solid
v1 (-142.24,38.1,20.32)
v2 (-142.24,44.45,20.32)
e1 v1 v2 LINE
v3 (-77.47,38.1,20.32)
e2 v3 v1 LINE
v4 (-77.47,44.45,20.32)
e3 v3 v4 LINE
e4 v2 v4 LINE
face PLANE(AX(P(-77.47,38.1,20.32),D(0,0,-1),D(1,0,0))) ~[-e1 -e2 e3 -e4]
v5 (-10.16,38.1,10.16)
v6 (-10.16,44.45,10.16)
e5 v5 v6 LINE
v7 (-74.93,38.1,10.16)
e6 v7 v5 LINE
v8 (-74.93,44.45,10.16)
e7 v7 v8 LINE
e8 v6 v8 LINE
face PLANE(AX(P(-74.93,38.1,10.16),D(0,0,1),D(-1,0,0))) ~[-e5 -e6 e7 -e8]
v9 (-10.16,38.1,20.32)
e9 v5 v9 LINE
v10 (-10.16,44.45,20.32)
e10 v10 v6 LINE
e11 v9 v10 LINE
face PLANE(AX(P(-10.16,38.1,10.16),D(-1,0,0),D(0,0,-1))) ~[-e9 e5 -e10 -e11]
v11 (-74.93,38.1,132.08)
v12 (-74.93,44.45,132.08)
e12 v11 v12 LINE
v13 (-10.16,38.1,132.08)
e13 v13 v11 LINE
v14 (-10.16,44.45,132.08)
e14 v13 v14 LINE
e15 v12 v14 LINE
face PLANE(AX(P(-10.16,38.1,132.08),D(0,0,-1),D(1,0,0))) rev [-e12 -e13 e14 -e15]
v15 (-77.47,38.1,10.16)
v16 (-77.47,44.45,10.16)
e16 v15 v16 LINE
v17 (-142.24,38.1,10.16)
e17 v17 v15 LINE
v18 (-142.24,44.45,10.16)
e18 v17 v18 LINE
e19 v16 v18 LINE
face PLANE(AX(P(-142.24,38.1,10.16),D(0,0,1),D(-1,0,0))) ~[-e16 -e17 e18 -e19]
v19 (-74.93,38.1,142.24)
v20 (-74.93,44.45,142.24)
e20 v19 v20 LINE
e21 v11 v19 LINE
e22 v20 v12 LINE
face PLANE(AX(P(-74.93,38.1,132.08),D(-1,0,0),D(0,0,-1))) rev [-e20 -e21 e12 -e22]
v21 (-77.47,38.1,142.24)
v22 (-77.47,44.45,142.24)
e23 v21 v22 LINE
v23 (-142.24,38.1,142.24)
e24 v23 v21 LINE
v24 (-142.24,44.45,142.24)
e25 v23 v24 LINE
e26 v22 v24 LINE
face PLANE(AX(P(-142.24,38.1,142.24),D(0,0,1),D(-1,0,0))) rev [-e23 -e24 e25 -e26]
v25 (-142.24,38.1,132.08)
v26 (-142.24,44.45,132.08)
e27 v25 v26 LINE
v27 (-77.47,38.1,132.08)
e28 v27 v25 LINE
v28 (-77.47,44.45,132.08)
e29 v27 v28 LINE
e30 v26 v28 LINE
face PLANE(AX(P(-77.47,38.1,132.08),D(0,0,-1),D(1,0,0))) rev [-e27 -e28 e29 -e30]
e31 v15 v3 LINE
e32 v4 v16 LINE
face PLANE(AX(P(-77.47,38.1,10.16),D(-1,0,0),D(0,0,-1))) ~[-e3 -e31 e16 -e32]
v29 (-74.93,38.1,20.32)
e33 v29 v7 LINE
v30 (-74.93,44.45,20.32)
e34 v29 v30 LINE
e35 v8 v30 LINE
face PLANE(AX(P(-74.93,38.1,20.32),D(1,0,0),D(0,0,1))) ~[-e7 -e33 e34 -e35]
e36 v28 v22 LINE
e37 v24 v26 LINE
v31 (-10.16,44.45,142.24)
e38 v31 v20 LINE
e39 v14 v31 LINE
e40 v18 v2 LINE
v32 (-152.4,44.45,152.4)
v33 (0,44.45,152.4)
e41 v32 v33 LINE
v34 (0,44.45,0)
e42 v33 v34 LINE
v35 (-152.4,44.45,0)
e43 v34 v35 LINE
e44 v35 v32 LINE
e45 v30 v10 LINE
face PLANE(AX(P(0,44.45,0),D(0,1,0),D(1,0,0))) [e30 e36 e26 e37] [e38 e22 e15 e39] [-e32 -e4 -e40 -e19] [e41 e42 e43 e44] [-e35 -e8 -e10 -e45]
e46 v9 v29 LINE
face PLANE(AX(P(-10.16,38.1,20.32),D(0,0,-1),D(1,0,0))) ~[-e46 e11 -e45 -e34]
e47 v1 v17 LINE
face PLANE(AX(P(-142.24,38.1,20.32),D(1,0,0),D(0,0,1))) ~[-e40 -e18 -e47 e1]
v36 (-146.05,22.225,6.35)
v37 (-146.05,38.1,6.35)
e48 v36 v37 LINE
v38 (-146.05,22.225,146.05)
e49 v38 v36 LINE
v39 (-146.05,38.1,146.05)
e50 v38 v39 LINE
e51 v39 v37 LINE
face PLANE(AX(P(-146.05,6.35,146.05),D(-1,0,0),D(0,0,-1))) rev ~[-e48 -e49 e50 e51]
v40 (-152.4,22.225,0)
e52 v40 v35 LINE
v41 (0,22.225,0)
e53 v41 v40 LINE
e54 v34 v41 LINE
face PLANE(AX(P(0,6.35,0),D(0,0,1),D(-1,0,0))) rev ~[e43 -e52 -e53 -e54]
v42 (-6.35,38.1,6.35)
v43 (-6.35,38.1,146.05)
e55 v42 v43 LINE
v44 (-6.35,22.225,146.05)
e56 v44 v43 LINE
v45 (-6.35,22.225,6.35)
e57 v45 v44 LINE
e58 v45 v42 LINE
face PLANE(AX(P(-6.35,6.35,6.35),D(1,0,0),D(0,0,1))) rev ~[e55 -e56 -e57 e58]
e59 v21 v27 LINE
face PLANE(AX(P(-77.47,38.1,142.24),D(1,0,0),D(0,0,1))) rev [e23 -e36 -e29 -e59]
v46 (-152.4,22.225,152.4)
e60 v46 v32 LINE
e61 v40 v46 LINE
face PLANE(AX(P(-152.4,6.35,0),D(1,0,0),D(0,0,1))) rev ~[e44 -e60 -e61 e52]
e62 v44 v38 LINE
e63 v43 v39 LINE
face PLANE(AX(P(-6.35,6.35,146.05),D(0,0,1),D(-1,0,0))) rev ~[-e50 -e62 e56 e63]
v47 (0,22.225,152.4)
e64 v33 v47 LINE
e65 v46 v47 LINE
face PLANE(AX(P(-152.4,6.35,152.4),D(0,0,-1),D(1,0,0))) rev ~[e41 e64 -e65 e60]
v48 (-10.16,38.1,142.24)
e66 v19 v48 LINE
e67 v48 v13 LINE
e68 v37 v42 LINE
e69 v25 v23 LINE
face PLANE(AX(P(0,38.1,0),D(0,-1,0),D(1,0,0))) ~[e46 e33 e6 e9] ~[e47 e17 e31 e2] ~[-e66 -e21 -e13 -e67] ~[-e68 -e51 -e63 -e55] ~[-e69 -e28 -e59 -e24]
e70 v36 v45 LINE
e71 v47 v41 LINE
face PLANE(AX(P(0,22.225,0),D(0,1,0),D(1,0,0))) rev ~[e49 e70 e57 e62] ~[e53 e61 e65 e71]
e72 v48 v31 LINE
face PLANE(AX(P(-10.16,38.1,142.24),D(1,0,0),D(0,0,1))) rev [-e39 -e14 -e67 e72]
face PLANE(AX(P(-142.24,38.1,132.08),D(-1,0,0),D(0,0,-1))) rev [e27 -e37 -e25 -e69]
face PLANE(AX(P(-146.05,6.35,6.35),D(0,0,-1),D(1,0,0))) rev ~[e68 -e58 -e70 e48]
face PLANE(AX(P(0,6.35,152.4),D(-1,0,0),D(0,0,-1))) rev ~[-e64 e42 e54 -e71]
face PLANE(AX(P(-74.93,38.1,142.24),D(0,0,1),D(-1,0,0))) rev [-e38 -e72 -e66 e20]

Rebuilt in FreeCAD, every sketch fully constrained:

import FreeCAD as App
import Part
import Sketcher
Q = App.Units.Quantity

doc = App.newDocument("Part")
params = doc.addObject("Spreadsheet::Sheet", "Params")
for row, (alias, value) in enumerate([
    ("sketch1_width", "6 in"),
    ("pad1_length", "0.25 in"),
    ("sketch2_height", "0.4 in"),
    ("sketch2_width", "2.55 in"),
    ("sketch3_width", "6 in"),
    ("pad2_length", "1.5 in"),
    ("sketch4_width", "6 in"),
], start=1):
    params.set(f"A{row}", alias)
    params.set(f"B{row}", "=" + value)
    params.setAlias(f"B{row}", alias)

body = doc.addObject("PartDesign::Body", "Body")

# Sketch on XZ plane
sketch1 = doc.addObject("Sketcher::SketchObject", "Sketch")
body.addObject(sketch1)
sketch1.AttachmentSupport = (doc.XZ_Plane, [""])
sketch1.MapMode = "FlatFace"
sketch1.addGeometry(Part.LineSegment(App.Vector(0, 152, 0), App.Vector(0, 0, 0)), False)
sketch1.addGeometry(Part.LineSegment(App.Vector(0, 0, 0), App.Vector(-152, 0, 0)), False)
sketch1.addGeometry(Part.LineSegment(App.Vector(-152, 0, 0), App.Vector(-152, 152, 0)), False)
sketch1.addGeometry(Part.LineSegment(App.Vector(-152, 152, 0), App.Vector(0, 152, 0)), False)
sketch1.addConstraint(Sketcher.Constraint("Coincident", 0, 2, 1, 1))
sketch1.addConstraint(Sketcher.Constraint("Coincident", 1, 2, 2, 1))
sketch1.addConstraint(Sketcher.Constraint("Coincident", 2, 2, 3, 1))
sketch1.addConstraint(Sketcher.Constraint("Coincident", 3, 2, 0, 1))
sketch1.addConstraint(Sketcher.Constraint("Vertical", 0))
sketch1.addConstraint(Sketcher.Constraint("Horizontal", 1))
sketch1.addConstraint(Sketcher.Constraint("Vertical", 2))
sketch1.addConstraint(Sketcher.Constraint("Horizontal", 3))
sketch1.addConstraint(Sketcher.Constraint("Coincident", 0, 2, -1, 1))
sketch1.addConstraint(Sketcher.Constraint("Equal", 3, 0))
sketch1.addConstraint(Sketcher.Constraint("DistanceX", 1, 2, 1, 1, Q("6 in")))
sketch1.setExpression("Constraints[10]", "Params.sketch1_width")
pad1 = doc.addObject("PartDesign::Pad", "Pad")
body.addObject(pad1)
pad1.Profile = sketch1
pad1.setExpression("Length", "Params.pad1_length")
pad1.Reversed = True

# Sketch on XZ plane
sketch2 = doc.addObject("Sketcher::SketchObject", "Sketch001")
body.addObject(sketch2)
sketch2.AttachmentSupport = (doc.XZ_Plane, [""])
sketch2.MapMode = "FlatFace"
sketch2.AttachmentOffset = App.Placement(App.Vector(0, 0, -0.25 * 25.4), App.Rotation())
sketch2.addGeometry(Part.LineSegment(App.Vector(-142, 132, 0), App.Vector(-142, 142, 0)), False)
sketch2.addGeometry(Part.LineSegment(App.Vector(-142, 142, 0), App.Vector(-77, 142, 0)), False)
sketch2.addGeometry(Part.LineSegment(App.Vector(-77, 142, 0), App.Vector(-77, 132, 0)), False)
sketch2.addGeometry(Part.LineSegment(App.Vector(-77, 132, 0), App.Vector(-142, 132, 0)), False)
sketch2.addGeometry(Part.LineSegment(App.Vector(-75, 132, 0), App.Vector(-75, 142, 0)), False)
sketch2.addGeometry(Part.LineSegment(App.Vector(-75, 142, 0), App.Vector(-10, 142, 0)), False)
sketch2.addGeometry(Part.LineSegment(App.Vector(-10, 142, 0), App.Vector(-10, 132, 0)), False)
sketch2.addGeometry(Part.LineSegment(App.Vector(-10, 132, 0), App.Vector(-75, 132, 0)), False)
sketch2.addGeometry(Part.LineSegment(App.Vector(-77, 10, 0), App.Vector(-142, 10, 0)), False)
sketch2.addGeometry(Part.LineSegment(App.Vector(-142, 10, 0), App.Vector(-142, 20, 0)), False)
sketch2.addGeometry(Part.LineSegment(App.Vector(-142, 20, 0), App.Vector(-77, 20, 0)), False)
sketch2.addGeometry(Part.LineSegment(App.Vector(-77, 20, 0), App.Vector(-77, 10, 0)), False)
sketch2.addGeometry(Part.LineSegment(App.Vector(-10, 10, 0), App.Vector(-75, 10, 0)), False)
sketch2.addGeometry(Part.LineSegment(App.Vector(-75, 10, 0), App.Vector(-75, 20, 0)), False)
sketch2.addGeometry(Part.LineSegment(App.Vector(-75, 20, 0), App.Vector(-10, 20, 0)), False)
sketch2.addGeometry(Part.LineSegment(App.Vector(-10, 20, 0), App.Vector(-10, 10, 0)), False)
sketch2.addConstraint(Sketcher.Constraint("Coincident", 0, 2, 1, 1))
sketch2.addConstraint(Sketcher.Constraint("Coincident", 1, 2, 2, 1))
sketch2.addConstraint(Sketcher.Constraint("Coincident", 2, 2, 3, 1))
sketch2.addConstraint(Sketcher.Constraint("Coincident", 3, 2, 0, 1))
sketch2.addConstraint(Sketcher.Constraint("Coincident", 4, 2, 5, 1))
sketch2.addConstraint(Sketcher.Constraint("Coincident", 5, 2, 6, 1))
sketch2.addConstraint(Sketcher.Constraint("Coincident", 6, 2, 7, 1))
sketch2.addConstraint(Sketcher.Constraint("Coincident", 7, 2, 4, 1))
sketch2.addConstraint(Sketcher.Constraint("Coincident", 8, 2, 9, 1))
sketch2.addConstraint(Sketcher.Constraint("Coincident", 9, 2, 10, 1))
sketch2.addConstraint(Sketcher.Constraint("Coincident", 10, 2, 11, 1))
sketch2.addConstraint(Sketcher.Constraint("Coincident", 11, 2, 8, 1))
sketch2.addConstraint(Sketcher.Constraint("Coincident", 12, 2, 13, 1))
sketch2.addConstraint(Sketcher.Constraint("Coincident", 13, 2, 14, 1))
sketch2.addConstraint(Sketcher.Constraint("Coincident", 14, 2, 15, 1))
sketch2.addConstraint(Sketcher.Constraint("Coincident", 15, 2, 12, 1))
sketch2.addConstraint(Sketcher.Constraint("Vertical", 0))
sketch2.addConstraint(Sketcher.Constraint("Horizontal", 1))
sketch2.addConstraint(Sketcher.Constraint("Vertical", 2))
sketch2.addConstraint(Sketcher.Constraint("Horizontal", 3))
sketch2.addConstraint(Sketcher.Constraint("Vertical", 4))
sketch2.addConstraint(Sketcher.Constraint("Horizontal", 5))
sketch2.addConstraint(Sketcher.Constraint("Vertical", 6))
sketch2.addConstraint(Sketcher.Constraint("Horizontal", 7))
sketch2.addConstraint(Sketcher.Constraint("Horizontal", 8))
sketch2.addConstraint(Sketcher.Constraint("Vertical", 9))
sketch2.addConstraint(Sketcher.Constraint("Horizontal", 10))
sketch2.addConstraint(Sketcher.Constraint("Vertical", 11))
sketch2.addConstraint(Sketcher.Constraint("Horizontal", 12))
sketch2.addConstraint(Sketcher.Constraint("Vertical", 13))
sketch2.addConstraint(Sketcher.Constraint("Horizontal", 14))
sketch2.addConstraint(Sketcher.Constraint("Vertical", 15))
sketch2.addConstraint(Sketcher.Constraint("Horizontal", 1, 2, 4, 2))
sketch2.addConstraint(Sketcher.Constraint("Horizontal", 3, 2, 6, 2))
sketch2.addConstraint(Sketcher.Constraint("Horizontal", 11, 2, 12, 2))
sketch2.addConstraint(Sketcher.Constraint("Horizontal", 10, 2, 13, 2))
sketch2.addConstraint(Sketcher.Constraint("Vertical", 3, 2, 8, 2))
sketch2.addConstraint(Sketcher.Constraint("Vertical", 2, 2, 10, 2))
sketch2.addConstraint(Sketcher.Constraint("Vertical", 7, 2, 12, 2))
sketch2.addConstraint(Sketcher.Constraint("Vertical", 6, 2, 14, 2))
sketch2.addConstraint(Sketcher.Constraint("Equal", 3, 5))
sketch2.addConstraint(Sketcher.Constraint("Equal", 6, 9))
sketch2.addConstraint(Sketcher.Constraint("DistanceY", 0, 1, 0, 2, Q("0.4 in")))
sketch2.addConstraint(Sketcher.Constraint("DistanceX", 1, 1, 1, 2, Q("2.55 in")))
sketch2.addConstraint(Sketcher.Constraint("DistanceX", 5, 2, -1, 1, Q("0.4 in")))
sketch2.addConstraint(Sketcher.Constraint("DistanceY", -1, 1, 8, 2, Q("0.4 in")))
sketch2.addConstraint(Sketcher.Constraint("DistanceX", 0, 2, -1, 1, Q("5.6 in")))
sketch2.addConstraint(Sketcher.Constraint("DistanceY", -1, 1, 0, 2, Q("5.6 in")))
sketch2.setExpression("Constraints[42]", "Params.sketch2_height")
sketch2.setExpression("Constraints[43]", "Params.sketch2_width")
pocket1 = doc.addObject("PartDesign::Pocket", "Pocket")
body.addObject(pocket1)
pocket1.Profile = sketch2
pocket1.Type = "ThroughAll"
pocket1.Reversed = True

# Sketch on XZ plane
sketch3 = doc.addObject("Sketcher::SketchObject", "Sketch002")
body.addObject(sketch3)
sketch3.AttachmentSupport = (doc.XZ_Plane, [""])
sketch3.MapMode = "FlatFace"
sketch3.AttachmentOffset = App.Placement(App.Vector(0, 0, -0.25 * 25.4), App.Rotation())
sketch3.addGeometry(Part.LineSegment(App.Vector(0, 0, 0), App.Vector(-152, 0, 0)), False)
sketch3.addGeometry(Part.LineSegment(App.Vector(-152, 0, 0), App.Vector(-152, 152, 0)), False)
sketch3.addGeometry(Part.LineSegment(App.Vector(-152, 152, 0), App.Vector(0, 152, 0)), False)
sketch3.addGeometry(Part.LineSegment(App.Vector(0, 152, 0), App.Vector(0, 0, 0)), False)
sketch3.addGeometry(Part.LineSegment(App.Vector(-6, 146, 0), App.Vector(-146, 146, 0)), False)
sketch3.addGeometry(Part.LineSegment(App.Vector(-146, 146, 0), App.Vector(-146, 6, 0)), False)
sketch3.addGeometry(Part.LineSegment(App.Vector(-146, 6, 0), App.Vector(-6, 6, 0)), False)
sketch3.addGeometry(Part.LineSegment(App.Vector(-6, 6, 0), App.Vector(-6, 146, 0)), False)
sketch3.addConstraint(Sketcher.Constraint("Coincident", 0, 2, 1, 1))
sketch3.addConstraint(Sketcher.Constraint("Coincident", 1, 2, 2, 1))
sketch3.addConstraint(Sketcher.Constraint("Coincident", 2, 2, 3, 1))
sketch3.addConstraint(Sketcher.Constraint("Coincident", 3, 2, 0, 1))
sketch3.addConstraint(Sketcher.Constraint("Coincident", 4, 2, 5, 1))
sketch3.addConstraint(Sketcher.Constraint("Coincident", 5, 2, 6, 1))
sketch3.addConstraint(Sketcher.Constraint("Coincident", 6, 2, 7, 1))
sketch3.addConstraint(Sketcher.Constraint("Coincident", 7, 2, 4, 1))
sketch3.addConstraint(Sketcher.Constraint("Horizontal", 0))
sketch3.addConstraint(Sketcher.Constraint("Vertical", 1))
sketch3.addConstraint(Sketcher.Constraint("Horizontal", 2))
sketch3.addConstraint(Sketcher.Constraint("Vertical", 3))
sketch3.addConstraint(Sketcher.Constraint("Horizontal", 4))
sketch3.addConstraint(Sketcher.Constraint("Vertical", 5))
sketch3.addConstraint(Sketcher.Constraint("Horizontal", 6))
sketch3.addConstraint(Sketcher.Constraint("Vertical", 7))
sketch3.addConstraint(Sketcher.Constraint("Coincident", 3, 2, -1, 1))
sketch3.addConstraint(Sketcher.Constraint("Equal", 2, 1))
sketch3.addConstraint(Sketcher.Constraint("Equal", 6, 5))
sketch3.addConstraint(Sketcher.Constraint("DistanceX", 0, 2, 0, 1, Q("6 in")))
sketch3.addConstraint(Sketcher.Constraint("DistanceY", -1, 1, 5, 2, Q("0.25 in")))
sketch3.addConstraint(Sketcher.Constraint("DistanceX", 6, 2, -1, 1, Q("0.25 in")))
sketch3.addConstraint(Sketcher.Constraint("DistanceX", 1, 2, 4, 2, Q("0.25 in")))
sketch3.setExpression("Constraints[19]", "Params.sketch3_width")
pad2 = doc.addObject("PartDesign::Pad", "Pad001")
body.addObject(pad2)
pad2.Profile = sketch3
pad2.setExpression("Length", "Params.pad2_length")
pad2.Reversed = True
doc.recompute()

datumplane = doc.addObject("PartDesign::Plane", "DatumPlane")
body.addObject(datumplane)
datumplane.AttachmentSupport = (doc.XZ_Plane, [""])
datumplane.MapMode = "FlatFace"
datumplane.AttachmentOffset = App.Placement(App.Vector(0, 0, -0.875 * 25.4), App.Rotation())
mirrored = doc.addObject("PartDesign::Mirrored", "Mirrored")
body.addObject(mirrored)
mirrored.Originals = [pad1, pocket1]
mirrored.MirrorPlane = (datumplane, [""])
body.Tip = mirrored

# Sketch on XZ plane
sketch4 = doc.addObject("Sketcher::SketchObject", "Sketch003")
body.addObject(sketch4)
sketch4.AttachmentSupport = (doc.XZ_Plane, [""])
sketch4.MapMode = "FlatFace"
sketch4.AttachmentOffset = App.Placement(App.Vector(0, 0, -0.875 * 25.4), App.Rotation())
sketch4.addGeometry(Part.LineSegment(App.Vector(-152, 0, 0), App.Vector(-152, 152, 0)), False)
sketch4.addGeometry(Part.LineSegment(App.Vector(-152, 152, 0), App.Vector(0, 152, 0)), False)
sketch4.addGeometry(Part.LineSegment(App.Vector(0, 152, 0), App.Vector(0, 0, 0)), False)
sketch4.addGeometry(Part.LineSegment(App.Vector(0, 0, 0), App.Vector(-152, 0, 0)), False)
sketch4.addConstraint(Sketcher.Constraint("Coincident", 0, 2, 1, 1))
sketch4.addConstraint(Sketcher.Constraint("Coincident", 1, 2, 2, 1))
sketch4.addConstraint(Sketcher.Constraint("Coincident", 2, 2, 3, 1))
sketch4.addConstraint(Sketcher.Constraint("Coincident", 3, 2, 0, 1))
sketch4.addConstraint(Sketcher.Constraint("Vertical", 0))
sketch4.addConstraint(Sketcher.Constraint("Horizontal", 1))
sketch4.addConstraint(Sketcher.Constraint("Vertical", 2))
sketch4.addConstraint(Sketcher.Constraint("Horizontal", 3))
sketch4.addConstraint(Sketcher.Constraint("Coincident", 2, 2, -1, 1))
sketch4.addConstraint(Sketcher.Constraint("Equal", 3, 0))
sketch4.addConstraint(Sketcher.Constraint("DistanceX", 1, 1, 1, 2, Q("6 in")))
sketch4.setExpression("Constraints[10]", "Params.sketch4_width")
pocket2 = doc.addObject("PartDesign::Pocket", "Pocket001")
body.addObject(pocket2)
pocket2.Profile = sketch4
pocket2.Type = "ThroughAll"
pocket2.Reversed = True

doc.recompute()
